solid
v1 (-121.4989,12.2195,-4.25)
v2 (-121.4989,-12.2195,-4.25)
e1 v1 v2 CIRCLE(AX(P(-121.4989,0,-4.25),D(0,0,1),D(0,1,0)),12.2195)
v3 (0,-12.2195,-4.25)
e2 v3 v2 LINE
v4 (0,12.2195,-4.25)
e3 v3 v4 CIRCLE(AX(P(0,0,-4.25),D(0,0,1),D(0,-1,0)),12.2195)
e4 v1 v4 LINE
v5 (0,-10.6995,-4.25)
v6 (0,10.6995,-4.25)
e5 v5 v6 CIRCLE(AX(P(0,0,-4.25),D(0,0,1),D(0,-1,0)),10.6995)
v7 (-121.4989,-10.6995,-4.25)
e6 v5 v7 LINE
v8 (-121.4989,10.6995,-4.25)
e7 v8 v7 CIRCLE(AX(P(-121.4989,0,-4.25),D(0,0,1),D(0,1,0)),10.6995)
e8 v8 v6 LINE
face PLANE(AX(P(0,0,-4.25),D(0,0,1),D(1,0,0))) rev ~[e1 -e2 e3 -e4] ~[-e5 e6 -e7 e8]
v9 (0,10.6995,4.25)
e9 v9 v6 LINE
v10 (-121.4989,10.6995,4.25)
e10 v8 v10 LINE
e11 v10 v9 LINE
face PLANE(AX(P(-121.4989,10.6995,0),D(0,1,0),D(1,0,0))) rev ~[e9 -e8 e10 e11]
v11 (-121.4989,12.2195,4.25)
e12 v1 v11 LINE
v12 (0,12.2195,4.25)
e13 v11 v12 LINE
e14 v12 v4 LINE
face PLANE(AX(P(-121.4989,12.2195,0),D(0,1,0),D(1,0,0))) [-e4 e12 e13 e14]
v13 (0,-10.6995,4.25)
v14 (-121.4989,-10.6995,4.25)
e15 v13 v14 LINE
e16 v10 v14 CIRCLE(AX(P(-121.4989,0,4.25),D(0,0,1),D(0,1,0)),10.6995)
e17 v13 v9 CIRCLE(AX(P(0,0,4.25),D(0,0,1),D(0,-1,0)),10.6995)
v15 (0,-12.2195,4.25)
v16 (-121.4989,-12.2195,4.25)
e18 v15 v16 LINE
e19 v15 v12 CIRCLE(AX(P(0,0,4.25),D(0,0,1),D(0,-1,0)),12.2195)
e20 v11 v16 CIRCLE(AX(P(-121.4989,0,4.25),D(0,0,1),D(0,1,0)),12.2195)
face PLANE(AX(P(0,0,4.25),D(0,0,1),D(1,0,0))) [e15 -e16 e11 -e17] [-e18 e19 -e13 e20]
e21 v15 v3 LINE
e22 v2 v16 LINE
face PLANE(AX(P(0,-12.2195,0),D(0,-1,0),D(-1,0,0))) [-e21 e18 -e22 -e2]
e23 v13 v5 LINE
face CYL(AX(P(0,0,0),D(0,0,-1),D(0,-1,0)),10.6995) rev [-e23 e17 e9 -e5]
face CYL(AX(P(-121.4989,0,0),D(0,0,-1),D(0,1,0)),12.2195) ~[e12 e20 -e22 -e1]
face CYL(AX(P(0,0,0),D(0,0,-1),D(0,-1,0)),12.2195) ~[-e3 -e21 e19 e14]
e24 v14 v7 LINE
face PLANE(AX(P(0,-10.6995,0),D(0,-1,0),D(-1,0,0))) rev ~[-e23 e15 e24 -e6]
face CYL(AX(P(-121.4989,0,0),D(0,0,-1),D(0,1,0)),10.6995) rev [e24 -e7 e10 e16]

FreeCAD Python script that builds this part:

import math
import FreeCAD as App
import Part
import Sketcher

doc = App.newDocument("Part")
body = doc.addObject("PartDesign::Body", "Body")

# Sketch on XY plane
sketch1 = body.newObject("Sketcher::SketchObject", "Sketch")
sketch1.AttachmentSupport = (doc.getObject("XY_Plane"), [""])
sketch1.MapMode = "FlatFace"
sketch1.addGeometry([
    Part.LineSegment(App.Vector(0, 12, 0), App.Vector(-121, 12, 0)),  # 0
    Part.ArcOfCircle(Part.Circle(App.Vector(-121, 0, 0), App.Vector(0, 0, 1), 12), math.radians(90), math.radians(270)),  # 1
    Part.LineSegment(App.Vector(-121, -12, 0), App.Vector(0, -12, 0)),  # 2
    Part.ArcOfCircle(Part.Circle(App.Vector(0, 0, 0), App.Vector(0, 0, 1), 12), math.radians(-90), math.radians(90)),  # 3
    Part.ArcOfCircle(Part.Circle(App.Vector(-121, 0, 0), App.Vector(0, 0, 1), 11), math.radians(90), math.radians(270)),  # 4
    Part.LineSegment(App.Vector(-121, 11, 0), App.Vector(0, 11, 0)),  # 5
    Part.ArcOfCircle(Part.Circle(App.Vector(0, 0, 0), App.Vector(0, 0, 1), 11), math.radians(-90), math.radians(90)),  # 6
    Part.LineSegment(App.Vector(0, -11, 0), App.Vector(-121, -11, 0)),  # 7
], False)
sketch1.addConstraint([
    Sketcher.Constraint("Tangent", 0, 2, 1, 1),
    Sketcher.Constraint("Tangent", 1, 2, 2, 1),
    Sketcher.Constraint("Tangent", 2, 2, 3, 1),
    Sketcher.Constraint("Tangent", 3, 2, 0, 1),
    Sketcher.Constraint("Tangent", 4, 1, 5, 1),
    Sketcher.Constraint("Tangent", 5, 2, 6, 2),
    Sketcher.Constraint("Tangent", 6, 1, 7, 1),
    Sketcher.Constraint("Tangent", 7, 2, 4, 2),
    Sketcher.Constraint("Horizontal", 0),
    Sketcher.Constraint("Horizontal", 2),
    Sketcher.Constraint("Horizontal", 5),
    Sketcher.Constraint("Horizontal", 7),
    Sketcher.Constraint("Coincident", 3, 3, -1, 1),
    Sketcher.Constraint("Coincident", 6, 3, -1, 1),
    Sketcher.Constraint("Vertical", 4, 3, 0, 2),
    Sketcher.Constraint("DistanceY", 4, 1, 0, 2, 1.52),
    Sketcher.Constraint("Radius", 1, 12.2195),
    Sketcher.Constraint("DistanceX", 0, 2, 0, 1, 121.499),
])
pad1 = body.newObject("PartDesign::Pad", "Pad")
pad1.Profile = sketch1
pad1.Length = 8.5
pad1.Midplane = True

doc.recompute()
